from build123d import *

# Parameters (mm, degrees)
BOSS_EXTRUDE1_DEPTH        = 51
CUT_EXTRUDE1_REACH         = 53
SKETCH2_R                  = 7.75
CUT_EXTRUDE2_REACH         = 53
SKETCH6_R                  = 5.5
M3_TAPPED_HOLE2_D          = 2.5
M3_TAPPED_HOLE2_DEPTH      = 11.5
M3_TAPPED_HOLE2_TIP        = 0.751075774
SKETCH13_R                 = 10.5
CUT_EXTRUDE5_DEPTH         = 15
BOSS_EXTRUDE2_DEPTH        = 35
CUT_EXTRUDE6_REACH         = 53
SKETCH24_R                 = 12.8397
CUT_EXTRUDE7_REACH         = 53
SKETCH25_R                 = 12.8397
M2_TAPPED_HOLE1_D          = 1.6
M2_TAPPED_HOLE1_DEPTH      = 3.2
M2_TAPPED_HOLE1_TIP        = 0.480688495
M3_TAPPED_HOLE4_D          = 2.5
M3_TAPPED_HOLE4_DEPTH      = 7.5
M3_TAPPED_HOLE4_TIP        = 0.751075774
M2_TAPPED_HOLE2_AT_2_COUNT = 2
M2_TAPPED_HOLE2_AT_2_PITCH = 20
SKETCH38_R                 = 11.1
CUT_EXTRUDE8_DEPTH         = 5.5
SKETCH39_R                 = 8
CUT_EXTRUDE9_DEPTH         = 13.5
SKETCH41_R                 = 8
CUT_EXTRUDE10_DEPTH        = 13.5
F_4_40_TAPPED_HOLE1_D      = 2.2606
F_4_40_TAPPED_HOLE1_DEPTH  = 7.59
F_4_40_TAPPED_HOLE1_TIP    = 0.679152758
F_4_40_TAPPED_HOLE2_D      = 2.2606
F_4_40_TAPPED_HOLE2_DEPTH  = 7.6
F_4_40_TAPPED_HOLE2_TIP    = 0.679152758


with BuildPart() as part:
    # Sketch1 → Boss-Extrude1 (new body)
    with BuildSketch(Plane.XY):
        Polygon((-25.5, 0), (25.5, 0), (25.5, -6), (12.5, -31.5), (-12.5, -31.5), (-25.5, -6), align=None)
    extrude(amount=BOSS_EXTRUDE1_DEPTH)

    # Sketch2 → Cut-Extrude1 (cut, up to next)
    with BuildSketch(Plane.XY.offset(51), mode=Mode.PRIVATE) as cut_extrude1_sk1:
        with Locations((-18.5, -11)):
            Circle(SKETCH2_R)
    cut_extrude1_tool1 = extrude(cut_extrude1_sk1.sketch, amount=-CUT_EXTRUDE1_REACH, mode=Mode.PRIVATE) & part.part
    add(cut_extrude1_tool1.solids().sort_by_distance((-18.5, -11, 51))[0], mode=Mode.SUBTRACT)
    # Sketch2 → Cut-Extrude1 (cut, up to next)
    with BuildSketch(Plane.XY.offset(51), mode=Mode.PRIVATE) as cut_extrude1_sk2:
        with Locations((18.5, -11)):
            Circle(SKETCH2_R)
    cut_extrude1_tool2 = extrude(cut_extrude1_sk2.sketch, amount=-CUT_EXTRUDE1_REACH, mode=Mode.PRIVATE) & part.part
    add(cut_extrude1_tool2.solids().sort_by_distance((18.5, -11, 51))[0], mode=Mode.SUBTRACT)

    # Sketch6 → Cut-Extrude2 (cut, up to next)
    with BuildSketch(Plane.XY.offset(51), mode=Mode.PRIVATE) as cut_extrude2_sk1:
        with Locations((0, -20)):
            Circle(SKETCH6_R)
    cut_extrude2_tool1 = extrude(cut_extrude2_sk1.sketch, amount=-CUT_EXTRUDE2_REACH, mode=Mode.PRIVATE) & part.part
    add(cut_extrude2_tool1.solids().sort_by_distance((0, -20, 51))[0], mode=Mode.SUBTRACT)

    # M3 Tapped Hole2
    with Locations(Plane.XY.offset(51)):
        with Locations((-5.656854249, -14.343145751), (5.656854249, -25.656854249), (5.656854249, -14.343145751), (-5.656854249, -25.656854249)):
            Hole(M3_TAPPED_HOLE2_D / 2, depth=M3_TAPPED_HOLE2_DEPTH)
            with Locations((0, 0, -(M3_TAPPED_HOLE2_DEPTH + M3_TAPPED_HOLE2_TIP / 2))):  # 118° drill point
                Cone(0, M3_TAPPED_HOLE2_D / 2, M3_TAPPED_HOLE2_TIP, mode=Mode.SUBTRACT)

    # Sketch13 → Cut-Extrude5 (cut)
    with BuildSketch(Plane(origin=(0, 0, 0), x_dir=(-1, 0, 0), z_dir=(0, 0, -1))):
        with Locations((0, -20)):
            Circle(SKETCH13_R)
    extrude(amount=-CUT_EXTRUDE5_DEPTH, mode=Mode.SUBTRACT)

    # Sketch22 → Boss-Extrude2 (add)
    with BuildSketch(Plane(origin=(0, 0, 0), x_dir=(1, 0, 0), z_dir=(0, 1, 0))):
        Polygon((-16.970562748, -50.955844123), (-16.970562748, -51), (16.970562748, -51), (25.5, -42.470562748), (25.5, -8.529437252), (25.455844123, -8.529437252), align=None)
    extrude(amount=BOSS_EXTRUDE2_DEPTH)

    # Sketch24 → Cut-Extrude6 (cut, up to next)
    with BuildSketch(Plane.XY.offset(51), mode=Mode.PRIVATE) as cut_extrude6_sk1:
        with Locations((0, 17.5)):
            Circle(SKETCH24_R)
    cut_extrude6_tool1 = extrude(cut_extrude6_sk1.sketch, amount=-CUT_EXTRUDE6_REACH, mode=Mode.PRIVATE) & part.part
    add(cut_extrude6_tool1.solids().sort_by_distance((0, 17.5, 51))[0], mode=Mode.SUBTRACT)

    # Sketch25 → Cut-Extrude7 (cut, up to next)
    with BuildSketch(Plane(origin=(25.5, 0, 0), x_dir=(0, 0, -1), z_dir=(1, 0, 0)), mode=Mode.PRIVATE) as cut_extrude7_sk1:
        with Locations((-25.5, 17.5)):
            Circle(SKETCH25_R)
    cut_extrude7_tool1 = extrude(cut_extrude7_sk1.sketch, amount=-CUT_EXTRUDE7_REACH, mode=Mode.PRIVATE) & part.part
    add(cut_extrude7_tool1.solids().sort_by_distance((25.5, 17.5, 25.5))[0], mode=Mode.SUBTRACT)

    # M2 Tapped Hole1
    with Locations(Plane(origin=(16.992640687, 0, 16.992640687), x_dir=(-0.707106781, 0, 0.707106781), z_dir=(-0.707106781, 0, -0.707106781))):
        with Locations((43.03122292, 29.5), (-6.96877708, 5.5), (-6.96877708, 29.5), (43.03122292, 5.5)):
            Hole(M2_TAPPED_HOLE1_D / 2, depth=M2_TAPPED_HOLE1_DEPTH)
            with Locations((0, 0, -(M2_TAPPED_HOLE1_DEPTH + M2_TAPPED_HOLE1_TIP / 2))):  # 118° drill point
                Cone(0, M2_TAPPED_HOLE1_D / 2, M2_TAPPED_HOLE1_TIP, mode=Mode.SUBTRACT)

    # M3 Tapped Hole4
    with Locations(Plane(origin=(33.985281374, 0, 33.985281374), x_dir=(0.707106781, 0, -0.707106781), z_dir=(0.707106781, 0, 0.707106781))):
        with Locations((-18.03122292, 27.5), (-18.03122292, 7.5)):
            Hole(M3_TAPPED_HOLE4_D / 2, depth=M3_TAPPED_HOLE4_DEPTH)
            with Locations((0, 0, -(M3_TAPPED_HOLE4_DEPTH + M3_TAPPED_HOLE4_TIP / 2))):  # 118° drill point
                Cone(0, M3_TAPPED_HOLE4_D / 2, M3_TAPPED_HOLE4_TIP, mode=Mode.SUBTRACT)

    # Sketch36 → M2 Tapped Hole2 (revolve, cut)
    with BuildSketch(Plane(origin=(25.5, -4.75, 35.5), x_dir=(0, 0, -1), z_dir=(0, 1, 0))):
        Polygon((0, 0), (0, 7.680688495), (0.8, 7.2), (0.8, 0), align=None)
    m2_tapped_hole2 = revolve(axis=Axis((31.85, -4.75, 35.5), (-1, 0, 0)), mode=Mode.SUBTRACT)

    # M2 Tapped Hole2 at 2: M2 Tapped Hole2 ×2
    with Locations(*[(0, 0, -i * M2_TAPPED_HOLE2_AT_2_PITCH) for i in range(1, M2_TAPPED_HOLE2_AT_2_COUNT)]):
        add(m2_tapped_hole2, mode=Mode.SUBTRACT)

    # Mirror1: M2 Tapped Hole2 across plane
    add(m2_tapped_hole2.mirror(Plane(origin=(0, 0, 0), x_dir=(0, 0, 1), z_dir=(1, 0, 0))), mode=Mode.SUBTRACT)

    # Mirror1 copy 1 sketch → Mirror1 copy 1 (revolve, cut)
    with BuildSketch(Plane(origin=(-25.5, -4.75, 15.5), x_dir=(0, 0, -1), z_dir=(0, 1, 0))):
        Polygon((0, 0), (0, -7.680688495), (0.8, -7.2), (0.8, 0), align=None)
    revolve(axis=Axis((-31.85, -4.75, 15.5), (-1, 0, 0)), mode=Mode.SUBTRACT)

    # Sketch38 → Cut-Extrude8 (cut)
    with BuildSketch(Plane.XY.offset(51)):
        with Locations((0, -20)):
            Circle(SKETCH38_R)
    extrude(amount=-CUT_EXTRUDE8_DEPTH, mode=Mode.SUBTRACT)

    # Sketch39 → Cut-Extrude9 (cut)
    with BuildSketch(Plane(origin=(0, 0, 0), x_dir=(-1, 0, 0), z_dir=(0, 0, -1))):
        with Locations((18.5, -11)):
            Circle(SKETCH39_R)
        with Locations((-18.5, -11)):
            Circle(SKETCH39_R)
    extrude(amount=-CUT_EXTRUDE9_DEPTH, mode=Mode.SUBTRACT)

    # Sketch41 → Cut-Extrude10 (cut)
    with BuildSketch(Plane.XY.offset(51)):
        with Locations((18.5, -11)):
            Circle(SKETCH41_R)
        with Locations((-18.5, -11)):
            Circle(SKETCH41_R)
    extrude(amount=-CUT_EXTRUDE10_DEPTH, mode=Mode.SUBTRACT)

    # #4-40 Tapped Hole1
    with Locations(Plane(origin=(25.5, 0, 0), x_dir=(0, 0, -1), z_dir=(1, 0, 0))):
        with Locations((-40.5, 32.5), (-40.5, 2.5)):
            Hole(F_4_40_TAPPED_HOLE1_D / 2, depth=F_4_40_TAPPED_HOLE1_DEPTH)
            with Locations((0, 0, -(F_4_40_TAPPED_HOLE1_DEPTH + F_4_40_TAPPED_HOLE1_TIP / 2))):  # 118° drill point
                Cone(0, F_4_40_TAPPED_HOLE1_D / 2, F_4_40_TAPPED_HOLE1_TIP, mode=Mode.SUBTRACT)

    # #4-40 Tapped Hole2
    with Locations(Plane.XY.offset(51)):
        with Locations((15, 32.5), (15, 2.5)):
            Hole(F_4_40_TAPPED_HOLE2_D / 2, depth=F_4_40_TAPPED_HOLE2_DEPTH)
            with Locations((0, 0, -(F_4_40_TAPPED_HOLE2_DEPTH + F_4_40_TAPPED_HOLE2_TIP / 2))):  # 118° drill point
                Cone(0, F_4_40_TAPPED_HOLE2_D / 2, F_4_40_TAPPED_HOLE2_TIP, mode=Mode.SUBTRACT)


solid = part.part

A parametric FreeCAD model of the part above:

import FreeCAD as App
import Part
import Sketcher
from FreeCAD import Vector
Q = App.Units.Quantity


def add_polygon(sketch, points):
    """Adds a closed chain of lines whose ends are joined by coincident constraints."""
    first, n = sketch.GeometryCount, len(points)
    for a, b in zip(points, points[1:] + points[:1]):
        sketch.addGeometry(Part.LineSegment(App.Vector(*a, 0), App.Vector(*b, 0)), False)
    for i in range(n):
        sketch.addConstraint(Sketcher.Constraint("Coincident", first + i, 2, first + (i + 1) % n, 1))

doc = App.newDocument("Part")
body = doc.addObject("PartDesign::Body", "Body")

sketch1 = doc.addObject("Sketcher::SketchObject", "Sketch")
body.addObject(sketch1)
sketch1.AttachmentSupport = (doc.XY_Plane, [""])
sketch1.MapMode = "FlatFace"
add_polygon(sketch1, [(26, 0), (-26, 0), (-26, -6), (-12, -32), (12, -32), (26, -6)])
sketch1.addConstraint(Sketcher.Constraint("Horizontal", 0))
sketch1.addConstraint(Sketcher.Constraint("Vertical", 1))
sketch1.addConstraint(Sketcher.Constraint("Horizontal", 3))
sketch1.addConstraint(Sketcher.Constraint("Vertical", 5))
sketch1.addConstraint(Sketcher.Constraint("Symmetric", 0, 2, 5, 2, -1, 1))
sketch1.addConstraint(Sketcher.Constraint("Horizontal", 1, 2, 4, 2))
sketch1.addConstraint(Sketcher.Constraint("Equal", 2, 4))
sketch1.addConstraint(Sketcher.Constraint("DistanceX", 0, 2, 0, 1, 51.0))
sketch1.addConstraint(Sketcher.Constraint("DistanceX", 3, 1, 3, 2, 25.0))
sketch1.addConstraint(Sketcher.Constraint("DistanceY", 1, 2, 1, 1, 6.0))
sketch1.addConstraint(Sketcher.Constraint("DistanceY", 2, 2, -1, 1, 31.5))
pad1 = doc.addObject("PartDesign::Pad", "Pad")
body.addObject(pad1)
pad1.Profile = sketch1
pad1.Length = 51

sketch2 = doc.addObject("Sketcher::SketchObject", "Sketch001")
body.addObject(sketch2)
sketch2.AttachmentSupport = (doc.XY_Plane, [""])
sketch2.MapMode = "FlatFace"
sketch2.AttachmentOffset = App.Placement(Vector(0, 0, 51), App.Rotation())
sketch2.addGeometry(Part.Circle(Vector(-18, -11, 0), Vector(0, 0, 1), 8), False)
sketch2.addConstraint(Sketcher.Constraint("Diameter", 0, 15.5))
sketch2.addConstraint(Sketcher.Constraint("DistanceY", 0, 3, -1, 1, 11.0))
sketch2.addConstraint(Sketcher.Constraint("DistanceX", 0, 3, -1, 1, 18.5))
pocket1 = doc.addObject("PartDesign::Pocket", "Pocket")
body.addObject(pocket1)
pocket1.Profile = sketch2
pocket1.Type = "UpToFirst"

sketch3 = doc.addObject("Sketcher::SketchObject", "Sketch002")
body.addObject(sketch3)
sketch3.AttachmentSupport = (doc.XY_Plane, [""])
sketch3.MapMode = "FlatFace"
sketch3.AttachmentOffset = App.Placement(Vector(0, 0, 51), App.Rotation())
sketch3.addGeometry(Part.Circle(Vector(18, -11, 0), Vector(0, 0, 1), 8), False)
sketch3.addConstraint(Sketcher.Constraint("Diameter", 0, 15.5))
sketch3.addConstraint(Sketcher.Constraint("DistanceY", 0, 3, -1, 1, 11.0))
sketch3.addConstraint(Sketcher.Constraint("DistanceX", -1, 1, 0, 3, 18.5))
pocket2 = doc.addObject("PartDesign::Pocket", "Pocket001")
body.addObject(pocket2)
pocket2.Profile = sketch3
pocket2.Type = "UpToFirst"

sketch4 = doc.addObject("Sketcher::SketchObject", "Sketch003")
body.addObject(sketch4)
sketch4.AttachmentSupport = (doc.XY_Plane, [""])
sketch4.MapMode = "FlatFace"
sketch4.AttachmentOffset = App.Placement(Vector(0, 0, 51), App.Rotation())
sketch4.addGeometry(Part.Circle(Vector(0, -20, 0), Vector(0, 0, 1), 6), False)
sketch4.addConstraint(Sketcher.Constraint("PointOnObject", 0, 3, -2))
sketch4.addConstraint(Sketcher.Constraint("Diameter", 0, 11.0))
sketch4.addConstraint(Sketcher.Constraint("DistanceY", 0, 3, -1, 1, 20.0))
pocket3 = doc.addObject("PartDesign::Pocket", "Pocket002")
body.addObject(pocket3)
pocket3.Profile = sketch4
pocket3.Type = "UpToFirst"

sketch5 = doc.addObject("Sketcher::SketchObject", "Sketch004")
body.addObject(sketch5)
sketch5.AttachmentSupport = (doc.XY_Plane, [""])
sketch5.MapMode = "FlatFace"
sketch5.AttachmentOffset = App.Placement(Vector(0, 0, 51), App.Rotation())
sketch5.addGeometry(Part.Circle(Vector(-5.7, -14.3, 0), Vector(0, 0, 1), 1.2), False)
sketch5.addGeometry(Part.Circle(Vector(5.7, -25.7, 0), Vector(0, 0, 1), 1.2), False)
sketch5.addGeometry(Part.Circle(Vector(5.7, -14.3, 0), Vector(0, 0, 1), 1.2), False)
sketch5.addGeometry(Part.Circle(Vector(-5.7, -25.7, 0), Vector(0, 0, 1), 1.2), False)
sketch5.addConstraint(Sketcher.Constraint("Equal", 0, 1))
sketch5.addConstraint(Sketcher.Constraint("Equal", 1, 2))
sketch5.addConstraint(Sketcher.Constraint("Equal", 2, 3))
sketch5.addConstraint(Sketcher.Constraint("Symmetric", 0, 3, 2, 3, -2))
sketch5.addConstraint(Sketcher.Constraint("Symmetric", 1, 3, 3, 3, -2))
sketch5.addConstraint(Sketcher.Constraint("Vertical", 1, 3, 2, 3))
sketch5.addConstraint(Sketcher.Constraint("Diameter", 0, 2.5))
sketch5.addConstraint(Sketcher.Constraint("DistanceX", 0, 3, 1, 3, 11.313708))
sketch5.addConstraint(Sketcher.Constraint("DistanceY", 1, 3, 0, 3, 11.313708))
sketch5.addConstraint(Sketcher.Constraint("DistanceY", 0, 3, -1, 1, 14.343146))
doc.recompute()
hole = doc.addObject("PartDesign::Hole", "Hole")
body.addObject(hole)
hole.Profile = sketch5
hole.ThreadType = "None"
hole.Diameter = 2.5
hole.DepthType = "Dimension"
hole.Depth = 11.5
hole.DrillPoint = "Angled"
hole.DrillPointAngle = 118

sketch6 = doc.addObject("Sketcher::SketchObject", "Sketch005")
body.addObject(sketch6)
sketch6.AttachmentSupport = (doc.XY_Plane, [""])
sketch6.MapMode = "FlatFace"
sketch6.addGeometry(Part.Circle(Vector(0, -20, 0), Vector(0, 0, 1), 10), False)
sketch6.addConstraint(Sketcher.Constraint("PointOnObject", 0, 3, -2))
sketch6.addConstraint(Sketcher.Constraint("Diameter", 0, 21.0))
sketch6.addConstraint(Sketcher.Constraint("DistanceY", 0, 3, -1, 1, 20.0))
pocket4 = doc.addObject("PartDesign::Pocket", "Pocket003")
body.addObject(pocket4)
pocket4.Profile = sketch6
pocket4.Length = 15
pocket4.Reversed = True

sketch7 = doc.addObject("Sketcher::SketchObject", "Sketch006")
body.addObject(sketch7)
sketch7.AttachmentSupport = (doc.XZ_Plane, [""])
sketch7.MapMode = "FlatFace"
add_polygon(sketch7, [(-16.971, 50.956), (-16.971, 51), (16.971, 51), (25.5, 42.471), (25.5, 8.529), (25.456, 8.529)])
sketch7.addConstraint(Sketcher.Constraint("Vertical", 0))
sketch7.addConstraint(Sketcher.Constraint("Horizontal", 1))
sketch7.addConstraint(Sketcher.Constraint("Vertical", 3))
sketch7.addConstraint(Sketcher.Constraint("Horizontal", 4))
sketch7.addConstraint(Sketcher.Constraint("Parallel", 2, 5))
sketch7.addConstraint(Sketcher.Constraint("Equal", 4, 0))
sketch7.addConstraint(Sketcher.Constraint("Equal", 1, 3))
sketch7.addConstraint(Sketcher.Constraint("Distance", 5, 60.0))
sketch7.addConstraint(Sketcher.Constraint("DistanceY", -1, 1, 0, 2, 51.0))
sketch7.addConstraint(Sketcher.Constraint("DistanceX", -1, 1, 2, 2, 25.5))
sketch7.addConstraint(Sketcher.Constraint("DistanceX", 1, 1, 1, 2, 33.941125))
sketch7.addConstraint(Sketcher.Constraint("DistanceX", 4, 2, 4, 1, 0.044156))
pad2 = doc.addObject("PartDesign::Pad", "Pad001")
body.addObject(pad2)
pad2.Profile = sketch7
pad2.Length = 35
pad2.Reversed = True

sketch8 = doc.addObject("Sketcher::SketchObject", "Sketch007")
body.addObject(sketch8)
sketch8.AttachmentSupport = (doc.XY_Plane, [""])
sketch8.MapMode = "FlatFace"
sketch8.AttachmentOffset = App.Placement(Vector(0, 0, 51), App.Rotation())
sketch8.addGeometry(Part.Circle(Vector(0, 18, 0), Vector(0, 0, 1), 13), False)
sketch8.addConstraint(Sketcher.Constraint("PointOnObject", 0, 3, -2))
sketch8.addConstraint(Sketcher.Constraint("Diameter", 0, 25.6794))
sketch8.addConstraint(Sketcher.Constraint("DistanceY", -1, 1, 0, 3, 17.5))
pocket5 = doc.addObject("PartDesign::Pocket", "Pocket004")
body.addObject(pocket5)
pocket5.Profile = sketch8
pocket5.Type = "UpToFirst"

sketch9 = doc.addObject("Sketcher::SketchObject", "Sketch008")
body.addObject(sketch9)
sketch9.AttachmentSupport = (doc.YZ_Plane, [""])
sketch9.MapMode = "FlatFace"
sketch9.AttachmentOffset = App.Placement(Vector(0, 0, 25.5), App.Rotation())
sketch9.addGeometry(Part.Circle(Vector(18, 26, 0), Vector(0, 0, 1), 13), False)
sketch9.addConstraint(Sketcher.Constraint("Diameter", 0, 25.6794))
sketch9.addConstraint(Sketcher.Constraint("DistanceX", -1, 1, 0, 3, 17.5))
sketch9.addConstraint(Sketcher.Constraint("DistanceY", -1, 1, 0, 3, 25.5))
pocket6 = doc.addObject("PartDesign::Pocket", "Pocket005")
body.addObject(pocket6)
pocket6.Profile = sketch9
pocket6.Type = "UpToFirst"

sketch10 = doc.addObject("Sketcher::SketchObject", "Sketch009")
body.addObject(sketch10)
sketch10.Placement = App.Placement(Vector(16.992641, 0, 16.992641), App.Rotation(Vector(-0.707106781, 0, 0.707106781), Vector(0, 0.999999999, 0), Vector(-0.707106781, 0, -0.707106781), "ZXY"))
sketch10.addGeometry(Part.Circle(Vector(43, 29.5, 0), Vector(0, 0, 1), 0.8), False)
sketch10.addGeometry(Part.Circle(Vector(-7, 5.5, 0), Vector(0, 0, 1), 0.8), False)
sketch10.addGeometry(Part.Circle(Vector(-7, 29.5, 0), Vector(0, 0, 1), 0.8), False)
sketch10.addGeometry(Part.Circle(Vector(43, 5.5, 0), Vector(0, 0, 1), 0.8), False)
sketch10.addConstraint(Sketcher.Constraint("Equal", 0, 1))
sketch10.addConstraint(Sketcher.Constraint("Equal", 1, 2))
sketch10.addConstraint(Sketcher.Constraint("Equal", 2, 3))
sketch10.addConstraint(Sketcher.Constraint("Horizontal", 0, 3, 2, 3))
sketch10.addConstraint(Sketcher.Constraint("Horizontal", 1, 3, 3, 3))
sketch10.addConstraint(Sketcher.Constraint("Vertical", 1, 3, 2, 3))
sketch10.addConstraint(Sketcher.Constraint("Vertical", 0, 3, 3, 3))
sketch10.addConstraint(Sketcher.Constraint("Diameter", 0, 1.6))
sketch10.addConstraint(Sketcher.Constraint("DistanceX", 1, 3, 0, 3, 50.0))
sketch10.addConstraint(Sketcher.Constraint("DistanceY", 1, 3, 0, 3, 24.0))
sketch10.addConstraint(Sketcher.Constraint("DistanceY", -1, 1, 0, 3, 29.5))
sketch10.addConstraint(Sketcher.Constraint("DistanceX", -1, 1, 0, 3, 43.031223))
doc.recompute()
hole2 = doc.addObject("PartDesign::Hole", "Hole001")
body.addObject(hole2)
hole2.Profile = sketch10
hole2.ThreadType = "None"
hole2.Diameter = 1.6
hole2.DepthType = "Dimension"
hole2.Depth = 3.2
hole2.DrillPoint = "Angled"
hole2.DrillPointAngle = 118

sketch11 = doc.addObject("Sketcher::SketchObject", "Sketch010")
body.addObject(sketch11)
sketch11.Placement = App.Placement(Vector(33.985281, 0, 33.985281), App.Rotation(Vector(0.707106781, 0, -0.707106781), Vector(0, 0.999999999, 0), Vector(0.707106781, 0, 0.707106781), "ZXY"))
sketch11.addGeometry(Part.Circle(Vector(-18, 27.5, 0), Vector(0, 0, 1), 1.2), False)
sketch11.addGeometry(Part.Circle(Vector(-18, 7.5, 0), Vector(0, 0, 1), 1.2), False)
sketch11.addConstraint(Sketcher.Constraint("Equal", 0, 1))
sketch11.addConstraint(Sketcher.Constraint("Vertical", 0, 3, 1, 3))
sketch11.addConstraint(Sketcher.Constraint("Diameter", 0, 2.5))
sketch11.addConstraint(Sketcher.Constraint("DistanceY", 1, 3, 0, 3, 20.0))
sketch11.addConstraint(Sketcher.Constraint("DistanceY", -1, 1, 0, 3, 27.5))
sketch11.addConstraint(Sketcher.Constraint("DistanceX", 0, 3, -1, 1, 18.031223))
doc.recompute()
hole3 = doc.addObject("PartDesign::Hole", "Hole002")
body.addObject(hole3)
hole3.Profile = sketch11
hole3.ThreadType = "None"
hole3.Diameter = 2.5
hole3.DepthType = "Dimension"
hole3.Depth = 7.5
hole3.DrillPoint = "Angled"
hole3.DrillPointAngle = 118

sketch12 = doc.addObject("Sketcher::SketchObject", "Sketch011")
body.addObject(sketch12)
sketch12.AttachmentSupport = (doc.XZ_Plane, [""])
sketch12.MapMode = "FlatFace"
sketch12.AttachmentOffset = App.Placement(Vector(0, 0, 4.75), App.Rotation())
add_polygon(sketch12, [(17.8, 35.5), (25.5, 35.5), (25.5, 34.7), (18.3, 34.7)])
sketch12.addGeometry(Part.LineSegment(Vector(25.5, 35.5, 0), Vector(17.8, 35.5, 0)), True)
sketch12.addConstraint(Sketcher.Constraint("Horizontal", 0))
sketch12.addConstraint(Sketcher.Constraint("Vertical", 1))
sketch12.addConstraint(Sketcher.Constraint("Horizontal", 2))
sketch12.addConstraint(Sketcher.Constraint("Horizontal", 4))
sketch12.addConstraint(Sketcher.Constraint("Coincident", 4, 1, 0, 2))
sketch12.addConstraint(Sketcher.Constraint("Equal", 0, 4))
sketch12.addConstraint(Sketcher.Constraint("Angle", 3, Q("121 deg")))
sketch12.addConstraint(Sketcher.Constraint("DistanceX", 2, 2, 2, 1, 7.2))
sketch12.addConstraint(Sketcher.Constraint("DistanceY", 1, 2, 1, 1, 0.8))
sketch12.addConstraint(Sketcher.Constraint("DistanceX", -1, 1, 0, 2, 25.5))
sketch12.addConstraint(Sketcher.Constraint("DistanceY", -1, 1, 0, 2, 35.5))
groove = doc.addObject("PartDesign::Groove", "Groove")
body.addObject(groove)
groove.Profile = sketch12
groove.ReferenceAxis = (sketch12, ["Axis0"])
groove.Angle = 360
doc.recompute()

linearpattern = doc.addObject("PartDesign::LinearPattern", "LinearPattern")
body.addObject(linearpattern)
linearpattern.Originals = [groove]
linearpattern.Direction = (doc.Z_Axis, [""])
linearpattern.Mode = "offset"
linearpattern.Offset = 20
linearpattern.Occurrences = 2
linearpattern.Reversed = True
body.Tip = linearpattern
doc.recompute()

mirrored = doc.addObject("PartDesign::Mirrored", "Mirrored")
body.addObject(mirrored)
mirrored.Originals = [groove]
mirrored.MirrorPlane = (doc.YZ_Plane, [""])
body.Tip = mirrored

sketch13 = doc.addObject("Sketcher::SketchObject", "Sketch012")
body.addObject(sketch13)
sketch13.AttachmentSupport = (doc.XZ_Plane, [""])
sketch13.MapMode = "FlatFace"
sketch13.AttachmentOffset = App.Placement(Vector(0, 0, 4.75), App.Rotation())
add_polygon(sketch13, [(-25.5, 15.5), (-17.8, 15.5), (-18.3, 14.7), (-25.5, 14.7)])
sketch13.addGeometry(Part.LineSegment(Vector(-17.8, 15.5, 0), Vector(-25.5, 15.5, 0)), True)
sketch13.addConstraint(Sketcher.Constraint("Horizontal", 0))
sketch13.addConstraint(Sketcher.Constraint("Horizontal", 2))
sketch13.addConstraint(Sketcher.Constraint("Vertical", 3))
sketch13.addConstraint(Sketcher.Constraint("Horizontal", 4))
sketch13.addConstraint(Sketcher.Constraint("Coincident", 4, 1, 0, 2))
sketch13.addConstraint(Sketcher.Constraint("Vertical", 2, 2, 4, 2))
sketch13.addConstraint(Sketcher.Constraint("Angle", 1, Q("-121 deg")))
sketch13.addConstraint(Sketcher.Constraint("DistanceX", 2, 2, 2, 1, 7.2))
sketch13.addConstraint(Sketcher.Constraint("DistanceY", 3, 1, 3, 2, 0.8))
sketch13.addConstraint(Sketcher.Constraint("DistanceY", -1, 1, 0, 2, 15.5))
sketch13.addConstraint(Sketcher.Constraint("DistanceX", 1, 2, -1, 1, 18.3))
groove2 = doc.addObject("PartDesign::Groove", "Groove001")
body.addObject(groove2)
groove2.Profile = sketch13
groove2.ReferenceAxis = (sketch13, ["Axis0"])
groove2.Angle = 360

sketch14 = doc.addObject("Sketcher::SketchObject", "Sketch013")
body.addObject(sketch14)
sketch14.AttachmentSupport = (doc.XY_Plane, [""])
sketch14.MapMode = "FlatFace"
sketch14.AttachmentOffset = App.Placement(Vector(0, 0, 51), App.Rotation())
sketch14.addGeometry(Part.Circle(Vector(0, -20, 0), Vector(0, 0, 1), 11), False)
sketch14.addConstraint(Sketcher.Constraint("PointOnObject", 0, 3, -2))
sketch14.addConstraint(Sketcher.Constraint("Diameter", 0, 22.2))
sketch14.addConstraint(Sketcher.Constraint("DistanceY", 0, 3, -1, 1, 20.0))
pocket7 = doc.addObject("PartDesign::Pocket", "Pocket006")
body.addObject(pocket7)
pocket7.Profile = sketch14
pocket7.Length = 5.5

sketch15 = doc.addObject("Sketcher::SketchObject", "Sketch014")
body.addObject(sketch15)
sketch15.AttachmentSupport = (doc.XY_Plane, [""])
sketch15.MapMode = "FlatFace"
sketch15.addGeometry(Part.Circle(Vector(-18, -11, 0), Vector(0, 0, 1), 8), False)
sketch15.addGeometry(Part.Circle(Vector(18, -11, 0), Vector(0, 0, 1), 8), False)
sketch15.addConstraint(Sketcher.Constraint("Equal", 0, 1))
sketch15.addConstraint(Sketcher.Constraint("Symmetric", 0, 3, 1, 3, -2))
sketch15.addConstraint(Sketcher.Constraint("Diameter", 0, 16.0))
sketch15.addConstraint(Sketcher.Constraint("DistanceY", 0, 3, -1, 1, 11.0))
sketch15.addConstraint(Sketcher.Constraint("DistanceX", 0, 3, 1, 3, 37.0))
pocket8 = doc.addObject("PartDesign::Pocket", "Pocket007")
body.addObject(pocket8)
pocket8.Profile = sketch15
pocket8.Length = 13.5
pocket8.Reversed = True

sketch16 = doc.addObject("Sketcher::SketchObject", "Sketch015")
body.addObject(sketch16)
sketch16.AttachmentSupport = (doc.XY_Plane, [""])
sketch16.MapMode = "FlatFace"
sketch16.AttachmentOffset = App.Placement(Vector(0, 0, 51), App.Rotation())
sketch16.addGeometry(Part.Circle(Vector(18, -11, 0), Vector(0, 0, 1), 8), False)
sketch16.addGeometry(Part.Circle(Vector(-18, -11, 0), Vector(0, 0, 1), 8), False)
sketch16.addConstraint(Sketcher.Constraint("Equal", 0, 1))
sketch16.addConstraint(Sketcher.Constraint("Symmetric", 0, 3, 1, 3, -2))
sketch16.addConstraint(Sketcher.Constraint("Diameter", 0, 16.0))
sketch16.addConstraint(Sketcher.Constraint("DistanceY", 0, 3, -1, 1, 11.0))
sketch16.addConstraint(Sketcher.Constraint("DistanceX", 1, 3, 0, 3, 37.0))
pocket9 = doc.addObject("PartDesign::Pocket", "Pocket008")
body.addObject(pocket9)
pocket9.Profile = sketch16
pocket9.Length = 13.5

sketch17 = doc.addObject("Sketcher::SketchObject", "Sketch016")
body.addObject(sketch17)
sketch17.AttachmentSupport = (doc.YZ_Plane, [""])
sketch17.MapMode = "FlatFace"
sketch17.AttachmentOffset = App.Placement(Vector(0, 0, 25.5), App.Rotation())
sketch17.addGeometry(Part.Circle(Vector(32.5, 40.5, 0), Vector(0, 0, 1), 1.1), False)
sketch17.addGeometry(Part.Circle(Vector(2.5, 40.5, 0), Vector(0, 0, 1), 1.1), False)
sketch17.addConstraint(Sketcher.Constraint("Equal", 0, 1))
sketch17.addConstraint(Sketcher.Constraint("Horizontal", 0, 3, 1, 3))
sketch17.addConstraint(Sketcher.Constraint("DistanceX", 1, 3, 0, 3, 30.0))
sketch17.addConstraint(Sketcher.Constraint("Diameter", 0, 2.2606))
sketch17.addConstraint(Sketcher.Constraint("DistanceX", -1, 1, 0, 3, 32.5))
sketch17.addConstraint(Sketcher.Constraint("DistanceY", -1, 1, 0, 3, 40.5))
doc.recompute()
hole4 = doc.addObject("PartDesign::Hole", "Hole003")
body.addObject(hole4)
hole4.Profile = sketch17
hole4.ThreadType = "None"
hole4.Diameter = 2.2606
hole4.DepthType = "Dimension"
hole4.Depth = 7.59
hole4.DrillPoint = "Angled"
hole4.DrillPointAngle = 118

sketch18 = doc.addObject("Sketcher::SketchObject", "Sketch017")
body.addObject(sketch18)
sketch18.AttachmentSupport = (doc.XY_Plane, [""])
sketch18.MapMode = "FlatFace"
sketch18.AttachmentOffset = App.Placement(Vector(0, 0, 51), App.Rotation())
sketch18.addGeometry(Part.Circle(Vector(15, 32.5, 0), Vector(0, 0, 1), 1.1), False)
sketch18.addGeometry(Part.Circle(Vector(15, 2.5, 0), Vector(0, 0, 1), 1.1), False)
sketch18.addConstraint(Sketcher.Constraint("Equal", 0, 1))
sketch18.addConstraint(Sketcher.Constraint("Vertical", 0, 3, 1, 3))
sketch18.addConstraint(Sketcher.Constraint("DistanceX", -1, 1, 0, 3, 15.0))
sketch18.addConstraint(Sketcher.Constraint("DistanceY", 1, 3, 0, 3, 30.0))
sketch18.addConstraint(Sketcher.Constraint("Diameter", 0, 2.2606))
sketch18.addConstraint(Sketcher.Constraint("DistanceY", -1, 1, 0, 3, 32.5))
doc.recompute()
hole5 = doc.addObject("PartDesign::Hole", "Hole004")
body.addObject(hole5)
hole5.Profile = sketch18
hole5.ThreadType = "None"
hole5.Diameter = 2.2606
hole5.DepthType = "Dimension"
hole5.Depth = 7.6
hole5.DrillPoint = "Angled"
hole5.DrillPointAngle = 118

doc.recompute()
